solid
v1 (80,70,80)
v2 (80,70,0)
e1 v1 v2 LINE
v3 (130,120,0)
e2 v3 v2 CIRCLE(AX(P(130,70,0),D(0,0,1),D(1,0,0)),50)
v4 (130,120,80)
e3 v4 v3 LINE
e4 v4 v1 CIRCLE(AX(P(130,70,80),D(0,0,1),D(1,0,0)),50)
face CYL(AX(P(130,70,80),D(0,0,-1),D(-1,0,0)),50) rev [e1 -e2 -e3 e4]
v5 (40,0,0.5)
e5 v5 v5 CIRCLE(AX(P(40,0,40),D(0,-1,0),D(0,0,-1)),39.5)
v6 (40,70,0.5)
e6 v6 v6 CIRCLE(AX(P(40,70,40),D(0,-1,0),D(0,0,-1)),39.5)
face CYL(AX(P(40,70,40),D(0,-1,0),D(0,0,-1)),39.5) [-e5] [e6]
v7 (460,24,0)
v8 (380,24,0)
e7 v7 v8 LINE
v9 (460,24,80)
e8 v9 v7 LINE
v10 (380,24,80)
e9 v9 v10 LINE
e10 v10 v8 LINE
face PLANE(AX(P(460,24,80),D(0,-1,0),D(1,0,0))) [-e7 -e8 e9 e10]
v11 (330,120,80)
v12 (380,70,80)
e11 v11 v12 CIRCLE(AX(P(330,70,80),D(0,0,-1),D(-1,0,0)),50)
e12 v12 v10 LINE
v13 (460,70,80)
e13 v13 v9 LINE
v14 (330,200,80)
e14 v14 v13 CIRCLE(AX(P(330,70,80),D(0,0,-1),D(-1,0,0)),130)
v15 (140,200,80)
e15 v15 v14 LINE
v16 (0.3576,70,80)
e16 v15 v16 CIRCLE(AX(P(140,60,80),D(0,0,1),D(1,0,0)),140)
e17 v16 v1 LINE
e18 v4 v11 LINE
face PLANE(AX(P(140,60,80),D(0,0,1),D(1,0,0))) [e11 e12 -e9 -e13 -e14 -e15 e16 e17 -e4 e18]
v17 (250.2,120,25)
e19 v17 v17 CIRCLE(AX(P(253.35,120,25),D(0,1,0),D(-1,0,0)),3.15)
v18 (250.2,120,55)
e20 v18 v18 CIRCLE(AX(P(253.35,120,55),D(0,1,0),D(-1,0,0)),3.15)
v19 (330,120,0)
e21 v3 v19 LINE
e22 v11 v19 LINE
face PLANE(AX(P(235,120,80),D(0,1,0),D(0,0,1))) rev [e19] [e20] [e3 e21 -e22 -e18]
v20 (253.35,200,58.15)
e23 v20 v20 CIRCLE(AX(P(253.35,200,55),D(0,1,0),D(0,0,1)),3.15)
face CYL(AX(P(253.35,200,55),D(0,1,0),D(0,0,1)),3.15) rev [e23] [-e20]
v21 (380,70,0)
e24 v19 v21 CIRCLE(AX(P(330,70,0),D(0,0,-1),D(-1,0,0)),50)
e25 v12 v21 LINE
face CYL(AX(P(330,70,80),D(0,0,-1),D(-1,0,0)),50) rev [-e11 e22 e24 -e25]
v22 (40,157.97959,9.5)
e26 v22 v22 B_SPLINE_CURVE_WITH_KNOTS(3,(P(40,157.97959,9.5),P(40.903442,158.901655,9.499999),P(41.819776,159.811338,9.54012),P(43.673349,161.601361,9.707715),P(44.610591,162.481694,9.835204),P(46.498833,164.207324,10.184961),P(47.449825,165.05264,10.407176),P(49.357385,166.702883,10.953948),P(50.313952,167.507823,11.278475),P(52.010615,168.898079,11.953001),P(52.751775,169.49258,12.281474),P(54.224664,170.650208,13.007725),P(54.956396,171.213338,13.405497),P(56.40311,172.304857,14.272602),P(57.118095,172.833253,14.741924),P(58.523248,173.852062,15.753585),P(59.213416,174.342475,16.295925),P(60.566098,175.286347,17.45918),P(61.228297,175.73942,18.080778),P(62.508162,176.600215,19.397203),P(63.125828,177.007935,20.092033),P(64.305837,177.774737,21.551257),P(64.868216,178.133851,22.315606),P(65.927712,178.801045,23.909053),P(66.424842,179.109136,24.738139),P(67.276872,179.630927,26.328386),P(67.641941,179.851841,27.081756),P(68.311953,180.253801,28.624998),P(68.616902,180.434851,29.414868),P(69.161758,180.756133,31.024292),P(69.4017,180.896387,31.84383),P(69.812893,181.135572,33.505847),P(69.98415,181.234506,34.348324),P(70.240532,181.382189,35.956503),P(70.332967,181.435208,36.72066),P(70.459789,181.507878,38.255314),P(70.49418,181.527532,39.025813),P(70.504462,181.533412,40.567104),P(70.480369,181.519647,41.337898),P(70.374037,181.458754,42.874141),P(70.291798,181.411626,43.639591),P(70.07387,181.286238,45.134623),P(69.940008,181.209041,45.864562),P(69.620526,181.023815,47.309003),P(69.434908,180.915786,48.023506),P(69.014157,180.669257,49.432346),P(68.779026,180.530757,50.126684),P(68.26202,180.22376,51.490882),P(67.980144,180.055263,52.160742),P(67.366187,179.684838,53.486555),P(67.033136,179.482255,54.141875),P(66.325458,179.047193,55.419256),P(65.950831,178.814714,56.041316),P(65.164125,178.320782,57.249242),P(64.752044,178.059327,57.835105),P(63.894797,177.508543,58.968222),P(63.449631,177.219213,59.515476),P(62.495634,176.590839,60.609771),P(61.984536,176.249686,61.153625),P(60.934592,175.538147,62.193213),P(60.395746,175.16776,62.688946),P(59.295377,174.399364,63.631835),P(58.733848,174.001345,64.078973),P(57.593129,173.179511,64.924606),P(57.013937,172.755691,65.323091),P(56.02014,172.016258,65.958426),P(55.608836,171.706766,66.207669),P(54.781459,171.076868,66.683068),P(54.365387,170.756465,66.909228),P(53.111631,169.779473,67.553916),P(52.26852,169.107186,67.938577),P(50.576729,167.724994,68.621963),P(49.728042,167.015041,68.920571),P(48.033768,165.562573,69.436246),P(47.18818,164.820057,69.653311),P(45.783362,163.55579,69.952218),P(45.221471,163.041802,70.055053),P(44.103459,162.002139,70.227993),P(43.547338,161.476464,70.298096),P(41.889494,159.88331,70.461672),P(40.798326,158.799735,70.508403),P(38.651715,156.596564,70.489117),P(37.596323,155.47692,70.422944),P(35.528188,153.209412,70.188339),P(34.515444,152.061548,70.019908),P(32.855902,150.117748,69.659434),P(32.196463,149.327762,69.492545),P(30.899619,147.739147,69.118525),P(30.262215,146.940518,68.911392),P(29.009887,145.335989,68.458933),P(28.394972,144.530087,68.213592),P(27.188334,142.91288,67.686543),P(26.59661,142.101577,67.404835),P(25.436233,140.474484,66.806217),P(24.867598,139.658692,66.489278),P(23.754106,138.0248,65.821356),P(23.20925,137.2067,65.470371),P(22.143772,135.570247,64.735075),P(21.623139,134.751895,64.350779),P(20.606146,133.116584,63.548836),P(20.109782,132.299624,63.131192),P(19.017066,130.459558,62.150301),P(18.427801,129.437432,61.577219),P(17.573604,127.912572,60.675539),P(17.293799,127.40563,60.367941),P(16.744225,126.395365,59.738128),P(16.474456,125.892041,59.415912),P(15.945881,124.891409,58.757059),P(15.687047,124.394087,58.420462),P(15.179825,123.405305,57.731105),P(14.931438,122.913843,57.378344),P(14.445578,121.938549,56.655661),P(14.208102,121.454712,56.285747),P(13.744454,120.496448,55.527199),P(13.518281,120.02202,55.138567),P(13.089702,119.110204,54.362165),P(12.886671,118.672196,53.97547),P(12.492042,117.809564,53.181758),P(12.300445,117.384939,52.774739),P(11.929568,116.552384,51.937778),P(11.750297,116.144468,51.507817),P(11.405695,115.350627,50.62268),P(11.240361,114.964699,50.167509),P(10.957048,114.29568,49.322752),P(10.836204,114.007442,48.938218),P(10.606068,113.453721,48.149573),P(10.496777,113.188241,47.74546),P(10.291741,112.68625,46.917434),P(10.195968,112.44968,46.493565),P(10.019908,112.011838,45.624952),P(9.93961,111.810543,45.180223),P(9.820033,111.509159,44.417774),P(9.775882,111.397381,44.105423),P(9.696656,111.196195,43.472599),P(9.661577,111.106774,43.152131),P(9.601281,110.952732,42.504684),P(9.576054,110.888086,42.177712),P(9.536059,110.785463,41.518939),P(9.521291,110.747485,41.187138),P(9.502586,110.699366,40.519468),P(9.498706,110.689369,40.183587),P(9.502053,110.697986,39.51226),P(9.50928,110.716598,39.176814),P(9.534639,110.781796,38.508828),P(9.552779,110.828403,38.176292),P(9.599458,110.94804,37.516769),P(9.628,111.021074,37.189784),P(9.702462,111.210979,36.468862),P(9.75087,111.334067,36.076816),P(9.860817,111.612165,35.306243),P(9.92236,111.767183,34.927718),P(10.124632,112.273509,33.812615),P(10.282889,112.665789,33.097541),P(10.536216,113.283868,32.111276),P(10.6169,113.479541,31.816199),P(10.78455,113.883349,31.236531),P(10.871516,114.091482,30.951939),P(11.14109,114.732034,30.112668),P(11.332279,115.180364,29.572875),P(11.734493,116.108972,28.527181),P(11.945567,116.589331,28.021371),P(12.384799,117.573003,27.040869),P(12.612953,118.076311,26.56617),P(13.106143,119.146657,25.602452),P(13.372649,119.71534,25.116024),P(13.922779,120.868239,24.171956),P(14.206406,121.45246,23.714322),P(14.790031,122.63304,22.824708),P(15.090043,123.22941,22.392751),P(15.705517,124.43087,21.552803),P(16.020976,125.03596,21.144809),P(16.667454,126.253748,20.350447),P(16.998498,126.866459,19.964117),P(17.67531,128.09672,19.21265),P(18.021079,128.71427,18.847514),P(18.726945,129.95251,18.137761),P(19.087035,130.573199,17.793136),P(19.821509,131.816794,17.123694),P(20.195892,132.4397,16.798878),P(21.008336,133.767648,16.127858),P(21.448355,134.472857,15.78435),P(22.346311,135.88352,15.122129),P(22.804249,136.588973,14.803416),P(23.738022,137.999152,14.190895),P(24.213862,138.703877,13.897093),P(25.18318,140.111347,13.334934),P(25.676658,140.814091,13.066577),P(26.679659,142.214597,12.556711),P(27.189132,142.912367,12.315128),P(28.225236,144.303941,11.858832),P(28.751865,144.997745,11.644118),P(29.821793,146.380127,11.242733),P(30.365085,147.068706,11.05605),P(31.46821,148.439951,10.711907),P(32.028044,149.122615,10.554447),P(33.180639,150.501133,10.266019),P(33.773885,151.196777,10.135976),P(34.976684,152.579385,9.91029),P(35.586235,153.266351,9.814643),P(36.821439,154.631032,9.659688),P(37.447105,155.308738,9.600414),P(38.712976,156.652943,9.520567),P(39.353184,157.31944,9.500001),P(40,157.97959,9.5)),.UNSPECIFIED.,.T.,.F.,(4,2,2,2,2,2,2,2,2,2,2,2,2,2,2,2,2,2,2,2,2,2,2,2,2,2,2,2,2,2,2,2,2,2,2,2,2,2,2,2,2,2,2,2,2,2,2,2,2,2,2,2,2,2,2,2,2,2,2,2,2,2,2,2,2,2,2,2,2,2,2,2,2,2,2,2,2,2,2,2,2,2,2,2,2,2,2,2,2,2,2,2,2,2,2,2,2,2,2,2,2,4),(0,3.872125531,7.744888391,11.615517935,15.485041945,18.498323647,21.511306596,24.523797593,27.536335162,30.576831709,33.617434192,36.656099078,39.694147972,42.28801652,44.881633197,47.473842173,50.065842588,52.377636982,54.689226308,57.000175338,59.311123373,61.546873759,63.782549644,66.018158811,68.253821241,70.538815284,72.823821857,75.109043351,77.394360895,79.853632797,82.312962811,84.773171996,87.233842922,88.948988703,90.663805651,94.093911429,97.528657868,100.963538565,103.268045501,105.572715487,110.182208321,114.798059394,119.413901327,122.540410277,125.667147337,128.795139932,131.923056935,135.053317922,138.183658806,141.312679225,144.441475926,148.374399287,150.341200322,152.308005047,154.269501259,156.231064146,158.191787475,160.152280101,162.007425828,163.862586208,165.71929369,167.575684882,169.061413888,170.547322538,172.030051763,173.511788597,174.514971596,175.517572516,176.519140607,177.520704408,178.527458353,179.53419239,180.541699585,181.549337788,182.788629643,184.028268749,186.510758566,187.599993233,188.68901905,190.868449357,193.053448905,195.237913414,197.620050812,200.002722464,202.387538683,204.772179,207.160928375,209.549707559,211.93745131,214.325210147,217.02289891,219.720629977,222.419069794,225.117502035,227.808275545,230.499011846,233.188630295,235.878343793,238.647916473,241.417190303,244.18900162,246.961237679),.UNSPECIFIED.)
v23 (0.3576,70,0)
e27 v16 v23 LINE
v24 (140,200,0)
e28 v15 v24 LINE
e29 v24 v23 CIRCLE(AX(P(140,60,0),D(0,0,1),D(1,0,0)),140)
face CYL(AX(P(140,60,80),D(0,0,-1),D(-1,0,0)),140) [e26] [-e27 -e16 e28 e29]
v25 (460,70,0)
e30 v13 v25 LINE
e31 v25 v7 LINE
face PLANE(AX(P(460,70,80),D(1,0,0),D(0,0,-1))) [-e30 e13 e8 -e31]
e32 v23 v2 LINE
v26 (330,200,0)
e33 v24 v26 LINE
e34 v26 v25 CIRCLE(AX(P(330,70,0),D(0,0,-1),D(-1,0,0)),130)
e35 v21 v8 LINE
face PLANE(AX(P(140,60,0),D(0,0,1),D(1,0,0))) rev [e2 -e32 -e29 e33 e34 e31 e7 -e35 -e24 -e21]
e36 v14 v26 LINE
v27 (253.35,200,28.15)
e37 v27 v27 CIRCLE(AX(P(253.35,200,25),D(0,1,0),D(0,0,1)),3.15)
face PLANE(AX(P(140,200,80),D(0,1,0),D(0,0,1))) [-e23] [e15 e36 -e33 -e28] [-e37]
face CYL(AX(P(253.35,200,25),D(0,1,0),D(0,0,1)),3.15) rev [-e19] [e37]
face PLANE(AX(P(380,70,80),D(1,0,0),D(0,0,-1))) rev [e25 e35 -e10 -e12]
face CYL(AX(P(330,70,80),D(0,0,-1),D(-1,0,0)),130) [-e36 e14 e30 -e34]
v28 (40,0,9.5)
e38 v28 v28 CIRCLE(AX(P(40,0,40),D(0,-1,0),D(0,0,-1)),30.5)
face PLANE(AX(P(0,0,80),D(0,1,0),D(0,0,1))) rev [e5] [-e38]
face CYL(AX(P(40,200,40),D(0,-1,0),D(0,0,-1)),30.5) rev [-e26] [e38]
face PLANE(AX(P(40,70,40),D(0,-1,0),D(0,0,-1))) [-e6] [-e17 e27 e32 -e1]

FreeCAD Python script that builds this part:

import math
import FreeCAD as App
import Part
import Sketcher
Q = App.Units.Quantity

doc = App.newDocument("Part")
params = doc.addObject("Spreadsheet::Sheet", "Params")
for row, (alias, value) in enumerate([
    ("sketch1_radius", "50 mm"),
    ("sketch1_radius2", "130 mm"),
    ("sketch1_radius3", "140 mm"),
    ("sketch1_width", "200 mm"),
    ("sketch1_height", "70 mm"),
    ("pad1_length", "80 mm"),
    ("sketch2_diameter", "119 mm"),
    ("sketch2_diameter2", "79 mm"),
    ("pocket1_length", "70 mm"),
    ("sketch3_diameter", "61 mm"),
    ("sketch4_diameter", "6.3 mm"),
    ("hole_diameter", "6.3 mm"),
], start=1):
    params.set(f"A{row}", alias)
    params.set(f"B{row}", "=" + value)
    params.setAlias(f"B{row}", alias)

body = doc.addObject("PartDesign::Body", "Body")

# Sketch on XY plane
sketch1 = body.newObject("Sketcher::SketchObject", "Sketch")
sketch1.AttachmentSupport = (doc.getObject("XY_Plane"), [""])
sketch1.MapMode = "FlatFace"
sketch1.addGeometry(Part.LineSegment(App.Vector(0, 0, 0), App.Vector(80, 0, 0)), False)
sketch1.addGeometry(Part.LineSegment(App.Vector(80, 0, 0), App.Vector(80, 70, 0)), False)
sketch1.addGeometry(Part.ArcOfCircle(Part.Circle(App.Vector(130, 70, 0), App.Vector(0, 0, 1), 50), math.radians(90), math.radians(180)), False)
sketch1.addGeometry(Part.LineSegment(App.Vector(130, 120, 0), App.Vector(330, 120, 0)), False)
sketch1.addGeometry(Part.ArcOfCircle(Part.Circle(App.Vector(330, 70, 0), App.Vector(0, 0, 1), 50), math.radians(0), math.radians(90)), False)
sketch1.addGeometry(Part.LineSegment(App.Vector(380, 70, 0), App.Vector(380, 24, 0)), False)
sketch1.addGeometry(Part.LineSegment(App.Vector(380, 24, 0), App.Vector(460, 24, 0)), False)
sketch1.addGeometry(Part.LineSegment(App.Vector(460, 24, 0), App.Vector(460, 70, 0)), False)
sketch1.addGeometry(Part.ArcOfCircle(Part.Circle(App.Vector(330, 70, 0), App.Vector(0, 0, 1), 130), math.radians(0), math.radians(90)), False)
sketch1.addGeometry(Part.LineSegment(App.Vector(330, 200, 0), App.Vector(140, 200, 0)), False)
sketch1.addGeometry(Part.ArcOfCircle(Part.Circle(App.Vector(140, 60, 0), App.Vector(0, 0, 1), 140), math.radians(90), math.radians(180)), False)
sketch1.addGeometry(Part.LineSegment(App.Vector(0, 60, 0), App.Vector(0, 0, 0)), False)
sketch1.addConstraint(Sketcher.Constraint("Coincident", 0, 2, 1, 1))
sketch1.addConstraint(Sketcher.Constraint("Tangent", 1, 2, 2, 2))
sketch1.addConstraint(Sketcher.Constraint("Tangent", 2, 1, 3, 1))
sketch1.addConstraint(Sketcher.Constraint("Tangent", 3, 2, 4, 2))
sketch1.addConstraint(Sketcher.Constraint("Tangent", 4, 1, 5, 1))
sketch1.addConstraint(Sketcher.Constraint("Coincident", 5, 2, 6, 1))
sketch1.addConstraint(Sketcher.Constraint("Coincident", 6, 2, 7, 1))
sketch1.addConstraint(Sketcher.Constraint("Tangent", 7, 2, 8, 1))
sketch1.addConstraint(Sketcher.Constraint("Tangent", 8, 2, 9, 1))
sketch1.addConstraint(Sketcher.Constraint("Tangent", 9, 2, 10, 1))
sketch1.addConstraint(Sketcher.Constraint("Tangent", 10, 2, 11, 1))
sketch1.addConstraint(Sketcher.Constraint("Coincident", 11, 2, 0, 1))
sketch1.addConstraint(Sketcher.Constraint("Horizontal", 0))
sketch1.addConstraint(Sketcher.Constraint("Vertical", 1))
sketch1.addConstraint(Sketcher.Constraint("Horizontal", 3))
sketch1.addConstraint(Sketcher.Constraint("Vertical", 5))
sketch1.addConstraint(Sketcher.Constraint("Horizontal", 6))
sketch1.addConstraint(Sketcher.Constraint("Vertical", 7))
sketch1.addConstraint(Sketcher.Constraint("Horizontal", 9))
sketch1.addConstraint(Sketcher.Constraint("Vertical", 11))
sketch1.addConstraint(Sketcher.Constraint("Coincident", 11, 2, -1, 1))
sketch1.addConstraint(Sketcher.Constraint("Coincident", 8, 3, 4, 3))
sketch1.addConstraint(Sketcher.Constraint("Equal", 2, 4))
sketch1.addConstraint(Sketcher.Constraint("Equal", 0, 6))
sketch1.addConstraint(Sketcher.Constraint("Radius", 2, Q("50 mm")))
sketch1.addConstraint(Sketcher.Constraint("Radius", 8, Q("130 mm")))
sketch1.addConstraint(Sketcher.Constraint("Radius", 10, Q("140 mm")))
sketch1.addConstraint(Sketcher.Constraint("DistanceX", 3, 1, 3, 2, Q("200 mm")))
sketch1.addConstraint(Sketcher.Constraint("DistanceY", 1, 1, 1, 2, Q("70 mm")))
sketch1.addConstraint(Sketcher.Constraint("DistanceY", 5, 2, 5, 1, Q("46 mm")))
sketch1.setExpression("Constraints[24]", "Params.sketch1_radius")
sketch1.setExpression("Constraints[25]", "Params.sketch1_radius2")
sketch1.setExpression("Constraints[26]", "Params.sketch1_radius3")
sketch1.setExpression("Constraints[27]", "Params.sketch1_width")
sketch1.setExpression("Constraints[28]", "Params.sketch1_height")
pad1 = body.newObject("PartDesign::Pad", "Pad")
pad1.Profile = sketch1
pad1.setExpression("Length", "Params.pad1_length")

# Sketch on XZ plane
sketch2 = body.newObject("Sketcher::SketchObject", "Sketch001")
sketch2.AttachmentSupport = (doc.getObject("XZ_Plane"), [""])
sketch2.MapMode = "FlatFace"
sketch2.addGeometry(Part.Circle(App.Vector(40, 40, 0), App.Vector(0, 0, 1), 60), False)
sketch2.addGeometry(Part.Circle(App.Vector(40, 40, 0), App.Vector(0, 0, 1), 40), False)
sketch2.addConstraint(Sketcher.Constraint("Coincident", 1, 3, 0, 3))
sketch2.addConstraint(Sketcher.Constraint("Diameter", 0, Q("119 mm")))
sketch2.addConstraint(Sketcher.Constraint("Diameter", 1, Q("79 mm")))
sketch2.addConstraint(Sketcher.Constraint("DistanceX", -1, 1, 0, 3, Q("40 mm")))
sketch2.addConstraint(Sketcher.Constraint("DistanceY", -1, 1, 0, 3, Q("40 mm")))
sketch2.setExpression("Constraints[1]", "Params.sketch2_diameter")
sketch2.setExpression("Constraints[2]", "Params.sketch2_diameter2")
pocket1 = body.newObject("PartDesign::Pocket", "Pocket")
pocket1.Profile = sketch2
pocket1.setExpression("Length", "Params.pocket1_length")

# Sketch on XZ plane
sketch3 = body.newObject("Sketcher::SketchObject", "Sketch002")
sketch3.AttachmentSupport = (doc.getObject("XZ_Plane"), [""])
sketch3.MapMode = "FlatFace"
sketch3.addGeometry(Part.Circle(App.Vector(40, 40, 0), App.Vector(0, 0, 1), 30), False)
sketch3.addConstraint(Sketcher.Constraint("Diameter", 0, Q("61 mm")))
sketch3.addConstraint(Sketcher.Constraint("DistanceX", -1, 1, 0, 3, Q("40 mm")))
sketch3.addConstraint(Sketcher.Constraint("DistanceY", -1, 1, 0, 3, Q("40 mm")))
sketch3.setExpression("Constraints[0]", "Params.sketch3_diameter")
pocket2 = body.newObject("PartDesign::Pocket", "Pocket001")
pocket2.Profile = sketch3
pocket2.Type = "ThroughAll"

# Sketch on XZ plane
sketch4 = body.newObject("Sketcher::SketchObject", "Sketch003")
sketch4.AttachmentSupport = (doc.getObject("XZ_Plane"), [""])
sketch4.MapMode = "FlatFace"
sketch4.AttachmentOffset = App.Placement(App.Vector(0, 0, -200), App.Rotation())
sketch4.addGeometry(Part.Circle(App.Vector(253.3, 55, 0), App.Vector(0, 0, 1), 3.1), False)
sketch4.addGeometry(Part.Circle(App.Vector(253.3, 25, 0), App.Vector(0, 0, 1), 3.1), False)
sketch4.addConstraint(Sketcher.Constraint("Equal", 0, 1))
sketch4.addConstraint(Sketcher.Constraint("Vertical", 0, 3, 1, 3))
sketch4.addConstraint(Sketcher.Constraint("Diameter", 0, Q("6.3 mm")))
sketch4.addConstraint(Sketcher.Constraint("DistanceY", -1, 1, 0, 3, Q("55 mm")))
sketch4.addConstraint(Sketcher.Constraint("DistanceY", -1, 1, 1, 3, Q("25 mm")))
sketch4.addConstraint(Sketcher.Constraint("DistanceX", -1, 1, 0, 3, Q("253.35 mm")))
sketch4.setExpression("Constraints[2]", "Params.sketch4_diameter")
doc.recompute()
hole = body.newObject("PartDesign::Hole", "Hole")
hole.Profile = sketch4
hole.ThreadType = "None"
hole.setExpression("Diameter", "Params.hole_diameter")
hole.DepthType = "ThroughAll"
hole.Reversed = True

doc.recompute()
